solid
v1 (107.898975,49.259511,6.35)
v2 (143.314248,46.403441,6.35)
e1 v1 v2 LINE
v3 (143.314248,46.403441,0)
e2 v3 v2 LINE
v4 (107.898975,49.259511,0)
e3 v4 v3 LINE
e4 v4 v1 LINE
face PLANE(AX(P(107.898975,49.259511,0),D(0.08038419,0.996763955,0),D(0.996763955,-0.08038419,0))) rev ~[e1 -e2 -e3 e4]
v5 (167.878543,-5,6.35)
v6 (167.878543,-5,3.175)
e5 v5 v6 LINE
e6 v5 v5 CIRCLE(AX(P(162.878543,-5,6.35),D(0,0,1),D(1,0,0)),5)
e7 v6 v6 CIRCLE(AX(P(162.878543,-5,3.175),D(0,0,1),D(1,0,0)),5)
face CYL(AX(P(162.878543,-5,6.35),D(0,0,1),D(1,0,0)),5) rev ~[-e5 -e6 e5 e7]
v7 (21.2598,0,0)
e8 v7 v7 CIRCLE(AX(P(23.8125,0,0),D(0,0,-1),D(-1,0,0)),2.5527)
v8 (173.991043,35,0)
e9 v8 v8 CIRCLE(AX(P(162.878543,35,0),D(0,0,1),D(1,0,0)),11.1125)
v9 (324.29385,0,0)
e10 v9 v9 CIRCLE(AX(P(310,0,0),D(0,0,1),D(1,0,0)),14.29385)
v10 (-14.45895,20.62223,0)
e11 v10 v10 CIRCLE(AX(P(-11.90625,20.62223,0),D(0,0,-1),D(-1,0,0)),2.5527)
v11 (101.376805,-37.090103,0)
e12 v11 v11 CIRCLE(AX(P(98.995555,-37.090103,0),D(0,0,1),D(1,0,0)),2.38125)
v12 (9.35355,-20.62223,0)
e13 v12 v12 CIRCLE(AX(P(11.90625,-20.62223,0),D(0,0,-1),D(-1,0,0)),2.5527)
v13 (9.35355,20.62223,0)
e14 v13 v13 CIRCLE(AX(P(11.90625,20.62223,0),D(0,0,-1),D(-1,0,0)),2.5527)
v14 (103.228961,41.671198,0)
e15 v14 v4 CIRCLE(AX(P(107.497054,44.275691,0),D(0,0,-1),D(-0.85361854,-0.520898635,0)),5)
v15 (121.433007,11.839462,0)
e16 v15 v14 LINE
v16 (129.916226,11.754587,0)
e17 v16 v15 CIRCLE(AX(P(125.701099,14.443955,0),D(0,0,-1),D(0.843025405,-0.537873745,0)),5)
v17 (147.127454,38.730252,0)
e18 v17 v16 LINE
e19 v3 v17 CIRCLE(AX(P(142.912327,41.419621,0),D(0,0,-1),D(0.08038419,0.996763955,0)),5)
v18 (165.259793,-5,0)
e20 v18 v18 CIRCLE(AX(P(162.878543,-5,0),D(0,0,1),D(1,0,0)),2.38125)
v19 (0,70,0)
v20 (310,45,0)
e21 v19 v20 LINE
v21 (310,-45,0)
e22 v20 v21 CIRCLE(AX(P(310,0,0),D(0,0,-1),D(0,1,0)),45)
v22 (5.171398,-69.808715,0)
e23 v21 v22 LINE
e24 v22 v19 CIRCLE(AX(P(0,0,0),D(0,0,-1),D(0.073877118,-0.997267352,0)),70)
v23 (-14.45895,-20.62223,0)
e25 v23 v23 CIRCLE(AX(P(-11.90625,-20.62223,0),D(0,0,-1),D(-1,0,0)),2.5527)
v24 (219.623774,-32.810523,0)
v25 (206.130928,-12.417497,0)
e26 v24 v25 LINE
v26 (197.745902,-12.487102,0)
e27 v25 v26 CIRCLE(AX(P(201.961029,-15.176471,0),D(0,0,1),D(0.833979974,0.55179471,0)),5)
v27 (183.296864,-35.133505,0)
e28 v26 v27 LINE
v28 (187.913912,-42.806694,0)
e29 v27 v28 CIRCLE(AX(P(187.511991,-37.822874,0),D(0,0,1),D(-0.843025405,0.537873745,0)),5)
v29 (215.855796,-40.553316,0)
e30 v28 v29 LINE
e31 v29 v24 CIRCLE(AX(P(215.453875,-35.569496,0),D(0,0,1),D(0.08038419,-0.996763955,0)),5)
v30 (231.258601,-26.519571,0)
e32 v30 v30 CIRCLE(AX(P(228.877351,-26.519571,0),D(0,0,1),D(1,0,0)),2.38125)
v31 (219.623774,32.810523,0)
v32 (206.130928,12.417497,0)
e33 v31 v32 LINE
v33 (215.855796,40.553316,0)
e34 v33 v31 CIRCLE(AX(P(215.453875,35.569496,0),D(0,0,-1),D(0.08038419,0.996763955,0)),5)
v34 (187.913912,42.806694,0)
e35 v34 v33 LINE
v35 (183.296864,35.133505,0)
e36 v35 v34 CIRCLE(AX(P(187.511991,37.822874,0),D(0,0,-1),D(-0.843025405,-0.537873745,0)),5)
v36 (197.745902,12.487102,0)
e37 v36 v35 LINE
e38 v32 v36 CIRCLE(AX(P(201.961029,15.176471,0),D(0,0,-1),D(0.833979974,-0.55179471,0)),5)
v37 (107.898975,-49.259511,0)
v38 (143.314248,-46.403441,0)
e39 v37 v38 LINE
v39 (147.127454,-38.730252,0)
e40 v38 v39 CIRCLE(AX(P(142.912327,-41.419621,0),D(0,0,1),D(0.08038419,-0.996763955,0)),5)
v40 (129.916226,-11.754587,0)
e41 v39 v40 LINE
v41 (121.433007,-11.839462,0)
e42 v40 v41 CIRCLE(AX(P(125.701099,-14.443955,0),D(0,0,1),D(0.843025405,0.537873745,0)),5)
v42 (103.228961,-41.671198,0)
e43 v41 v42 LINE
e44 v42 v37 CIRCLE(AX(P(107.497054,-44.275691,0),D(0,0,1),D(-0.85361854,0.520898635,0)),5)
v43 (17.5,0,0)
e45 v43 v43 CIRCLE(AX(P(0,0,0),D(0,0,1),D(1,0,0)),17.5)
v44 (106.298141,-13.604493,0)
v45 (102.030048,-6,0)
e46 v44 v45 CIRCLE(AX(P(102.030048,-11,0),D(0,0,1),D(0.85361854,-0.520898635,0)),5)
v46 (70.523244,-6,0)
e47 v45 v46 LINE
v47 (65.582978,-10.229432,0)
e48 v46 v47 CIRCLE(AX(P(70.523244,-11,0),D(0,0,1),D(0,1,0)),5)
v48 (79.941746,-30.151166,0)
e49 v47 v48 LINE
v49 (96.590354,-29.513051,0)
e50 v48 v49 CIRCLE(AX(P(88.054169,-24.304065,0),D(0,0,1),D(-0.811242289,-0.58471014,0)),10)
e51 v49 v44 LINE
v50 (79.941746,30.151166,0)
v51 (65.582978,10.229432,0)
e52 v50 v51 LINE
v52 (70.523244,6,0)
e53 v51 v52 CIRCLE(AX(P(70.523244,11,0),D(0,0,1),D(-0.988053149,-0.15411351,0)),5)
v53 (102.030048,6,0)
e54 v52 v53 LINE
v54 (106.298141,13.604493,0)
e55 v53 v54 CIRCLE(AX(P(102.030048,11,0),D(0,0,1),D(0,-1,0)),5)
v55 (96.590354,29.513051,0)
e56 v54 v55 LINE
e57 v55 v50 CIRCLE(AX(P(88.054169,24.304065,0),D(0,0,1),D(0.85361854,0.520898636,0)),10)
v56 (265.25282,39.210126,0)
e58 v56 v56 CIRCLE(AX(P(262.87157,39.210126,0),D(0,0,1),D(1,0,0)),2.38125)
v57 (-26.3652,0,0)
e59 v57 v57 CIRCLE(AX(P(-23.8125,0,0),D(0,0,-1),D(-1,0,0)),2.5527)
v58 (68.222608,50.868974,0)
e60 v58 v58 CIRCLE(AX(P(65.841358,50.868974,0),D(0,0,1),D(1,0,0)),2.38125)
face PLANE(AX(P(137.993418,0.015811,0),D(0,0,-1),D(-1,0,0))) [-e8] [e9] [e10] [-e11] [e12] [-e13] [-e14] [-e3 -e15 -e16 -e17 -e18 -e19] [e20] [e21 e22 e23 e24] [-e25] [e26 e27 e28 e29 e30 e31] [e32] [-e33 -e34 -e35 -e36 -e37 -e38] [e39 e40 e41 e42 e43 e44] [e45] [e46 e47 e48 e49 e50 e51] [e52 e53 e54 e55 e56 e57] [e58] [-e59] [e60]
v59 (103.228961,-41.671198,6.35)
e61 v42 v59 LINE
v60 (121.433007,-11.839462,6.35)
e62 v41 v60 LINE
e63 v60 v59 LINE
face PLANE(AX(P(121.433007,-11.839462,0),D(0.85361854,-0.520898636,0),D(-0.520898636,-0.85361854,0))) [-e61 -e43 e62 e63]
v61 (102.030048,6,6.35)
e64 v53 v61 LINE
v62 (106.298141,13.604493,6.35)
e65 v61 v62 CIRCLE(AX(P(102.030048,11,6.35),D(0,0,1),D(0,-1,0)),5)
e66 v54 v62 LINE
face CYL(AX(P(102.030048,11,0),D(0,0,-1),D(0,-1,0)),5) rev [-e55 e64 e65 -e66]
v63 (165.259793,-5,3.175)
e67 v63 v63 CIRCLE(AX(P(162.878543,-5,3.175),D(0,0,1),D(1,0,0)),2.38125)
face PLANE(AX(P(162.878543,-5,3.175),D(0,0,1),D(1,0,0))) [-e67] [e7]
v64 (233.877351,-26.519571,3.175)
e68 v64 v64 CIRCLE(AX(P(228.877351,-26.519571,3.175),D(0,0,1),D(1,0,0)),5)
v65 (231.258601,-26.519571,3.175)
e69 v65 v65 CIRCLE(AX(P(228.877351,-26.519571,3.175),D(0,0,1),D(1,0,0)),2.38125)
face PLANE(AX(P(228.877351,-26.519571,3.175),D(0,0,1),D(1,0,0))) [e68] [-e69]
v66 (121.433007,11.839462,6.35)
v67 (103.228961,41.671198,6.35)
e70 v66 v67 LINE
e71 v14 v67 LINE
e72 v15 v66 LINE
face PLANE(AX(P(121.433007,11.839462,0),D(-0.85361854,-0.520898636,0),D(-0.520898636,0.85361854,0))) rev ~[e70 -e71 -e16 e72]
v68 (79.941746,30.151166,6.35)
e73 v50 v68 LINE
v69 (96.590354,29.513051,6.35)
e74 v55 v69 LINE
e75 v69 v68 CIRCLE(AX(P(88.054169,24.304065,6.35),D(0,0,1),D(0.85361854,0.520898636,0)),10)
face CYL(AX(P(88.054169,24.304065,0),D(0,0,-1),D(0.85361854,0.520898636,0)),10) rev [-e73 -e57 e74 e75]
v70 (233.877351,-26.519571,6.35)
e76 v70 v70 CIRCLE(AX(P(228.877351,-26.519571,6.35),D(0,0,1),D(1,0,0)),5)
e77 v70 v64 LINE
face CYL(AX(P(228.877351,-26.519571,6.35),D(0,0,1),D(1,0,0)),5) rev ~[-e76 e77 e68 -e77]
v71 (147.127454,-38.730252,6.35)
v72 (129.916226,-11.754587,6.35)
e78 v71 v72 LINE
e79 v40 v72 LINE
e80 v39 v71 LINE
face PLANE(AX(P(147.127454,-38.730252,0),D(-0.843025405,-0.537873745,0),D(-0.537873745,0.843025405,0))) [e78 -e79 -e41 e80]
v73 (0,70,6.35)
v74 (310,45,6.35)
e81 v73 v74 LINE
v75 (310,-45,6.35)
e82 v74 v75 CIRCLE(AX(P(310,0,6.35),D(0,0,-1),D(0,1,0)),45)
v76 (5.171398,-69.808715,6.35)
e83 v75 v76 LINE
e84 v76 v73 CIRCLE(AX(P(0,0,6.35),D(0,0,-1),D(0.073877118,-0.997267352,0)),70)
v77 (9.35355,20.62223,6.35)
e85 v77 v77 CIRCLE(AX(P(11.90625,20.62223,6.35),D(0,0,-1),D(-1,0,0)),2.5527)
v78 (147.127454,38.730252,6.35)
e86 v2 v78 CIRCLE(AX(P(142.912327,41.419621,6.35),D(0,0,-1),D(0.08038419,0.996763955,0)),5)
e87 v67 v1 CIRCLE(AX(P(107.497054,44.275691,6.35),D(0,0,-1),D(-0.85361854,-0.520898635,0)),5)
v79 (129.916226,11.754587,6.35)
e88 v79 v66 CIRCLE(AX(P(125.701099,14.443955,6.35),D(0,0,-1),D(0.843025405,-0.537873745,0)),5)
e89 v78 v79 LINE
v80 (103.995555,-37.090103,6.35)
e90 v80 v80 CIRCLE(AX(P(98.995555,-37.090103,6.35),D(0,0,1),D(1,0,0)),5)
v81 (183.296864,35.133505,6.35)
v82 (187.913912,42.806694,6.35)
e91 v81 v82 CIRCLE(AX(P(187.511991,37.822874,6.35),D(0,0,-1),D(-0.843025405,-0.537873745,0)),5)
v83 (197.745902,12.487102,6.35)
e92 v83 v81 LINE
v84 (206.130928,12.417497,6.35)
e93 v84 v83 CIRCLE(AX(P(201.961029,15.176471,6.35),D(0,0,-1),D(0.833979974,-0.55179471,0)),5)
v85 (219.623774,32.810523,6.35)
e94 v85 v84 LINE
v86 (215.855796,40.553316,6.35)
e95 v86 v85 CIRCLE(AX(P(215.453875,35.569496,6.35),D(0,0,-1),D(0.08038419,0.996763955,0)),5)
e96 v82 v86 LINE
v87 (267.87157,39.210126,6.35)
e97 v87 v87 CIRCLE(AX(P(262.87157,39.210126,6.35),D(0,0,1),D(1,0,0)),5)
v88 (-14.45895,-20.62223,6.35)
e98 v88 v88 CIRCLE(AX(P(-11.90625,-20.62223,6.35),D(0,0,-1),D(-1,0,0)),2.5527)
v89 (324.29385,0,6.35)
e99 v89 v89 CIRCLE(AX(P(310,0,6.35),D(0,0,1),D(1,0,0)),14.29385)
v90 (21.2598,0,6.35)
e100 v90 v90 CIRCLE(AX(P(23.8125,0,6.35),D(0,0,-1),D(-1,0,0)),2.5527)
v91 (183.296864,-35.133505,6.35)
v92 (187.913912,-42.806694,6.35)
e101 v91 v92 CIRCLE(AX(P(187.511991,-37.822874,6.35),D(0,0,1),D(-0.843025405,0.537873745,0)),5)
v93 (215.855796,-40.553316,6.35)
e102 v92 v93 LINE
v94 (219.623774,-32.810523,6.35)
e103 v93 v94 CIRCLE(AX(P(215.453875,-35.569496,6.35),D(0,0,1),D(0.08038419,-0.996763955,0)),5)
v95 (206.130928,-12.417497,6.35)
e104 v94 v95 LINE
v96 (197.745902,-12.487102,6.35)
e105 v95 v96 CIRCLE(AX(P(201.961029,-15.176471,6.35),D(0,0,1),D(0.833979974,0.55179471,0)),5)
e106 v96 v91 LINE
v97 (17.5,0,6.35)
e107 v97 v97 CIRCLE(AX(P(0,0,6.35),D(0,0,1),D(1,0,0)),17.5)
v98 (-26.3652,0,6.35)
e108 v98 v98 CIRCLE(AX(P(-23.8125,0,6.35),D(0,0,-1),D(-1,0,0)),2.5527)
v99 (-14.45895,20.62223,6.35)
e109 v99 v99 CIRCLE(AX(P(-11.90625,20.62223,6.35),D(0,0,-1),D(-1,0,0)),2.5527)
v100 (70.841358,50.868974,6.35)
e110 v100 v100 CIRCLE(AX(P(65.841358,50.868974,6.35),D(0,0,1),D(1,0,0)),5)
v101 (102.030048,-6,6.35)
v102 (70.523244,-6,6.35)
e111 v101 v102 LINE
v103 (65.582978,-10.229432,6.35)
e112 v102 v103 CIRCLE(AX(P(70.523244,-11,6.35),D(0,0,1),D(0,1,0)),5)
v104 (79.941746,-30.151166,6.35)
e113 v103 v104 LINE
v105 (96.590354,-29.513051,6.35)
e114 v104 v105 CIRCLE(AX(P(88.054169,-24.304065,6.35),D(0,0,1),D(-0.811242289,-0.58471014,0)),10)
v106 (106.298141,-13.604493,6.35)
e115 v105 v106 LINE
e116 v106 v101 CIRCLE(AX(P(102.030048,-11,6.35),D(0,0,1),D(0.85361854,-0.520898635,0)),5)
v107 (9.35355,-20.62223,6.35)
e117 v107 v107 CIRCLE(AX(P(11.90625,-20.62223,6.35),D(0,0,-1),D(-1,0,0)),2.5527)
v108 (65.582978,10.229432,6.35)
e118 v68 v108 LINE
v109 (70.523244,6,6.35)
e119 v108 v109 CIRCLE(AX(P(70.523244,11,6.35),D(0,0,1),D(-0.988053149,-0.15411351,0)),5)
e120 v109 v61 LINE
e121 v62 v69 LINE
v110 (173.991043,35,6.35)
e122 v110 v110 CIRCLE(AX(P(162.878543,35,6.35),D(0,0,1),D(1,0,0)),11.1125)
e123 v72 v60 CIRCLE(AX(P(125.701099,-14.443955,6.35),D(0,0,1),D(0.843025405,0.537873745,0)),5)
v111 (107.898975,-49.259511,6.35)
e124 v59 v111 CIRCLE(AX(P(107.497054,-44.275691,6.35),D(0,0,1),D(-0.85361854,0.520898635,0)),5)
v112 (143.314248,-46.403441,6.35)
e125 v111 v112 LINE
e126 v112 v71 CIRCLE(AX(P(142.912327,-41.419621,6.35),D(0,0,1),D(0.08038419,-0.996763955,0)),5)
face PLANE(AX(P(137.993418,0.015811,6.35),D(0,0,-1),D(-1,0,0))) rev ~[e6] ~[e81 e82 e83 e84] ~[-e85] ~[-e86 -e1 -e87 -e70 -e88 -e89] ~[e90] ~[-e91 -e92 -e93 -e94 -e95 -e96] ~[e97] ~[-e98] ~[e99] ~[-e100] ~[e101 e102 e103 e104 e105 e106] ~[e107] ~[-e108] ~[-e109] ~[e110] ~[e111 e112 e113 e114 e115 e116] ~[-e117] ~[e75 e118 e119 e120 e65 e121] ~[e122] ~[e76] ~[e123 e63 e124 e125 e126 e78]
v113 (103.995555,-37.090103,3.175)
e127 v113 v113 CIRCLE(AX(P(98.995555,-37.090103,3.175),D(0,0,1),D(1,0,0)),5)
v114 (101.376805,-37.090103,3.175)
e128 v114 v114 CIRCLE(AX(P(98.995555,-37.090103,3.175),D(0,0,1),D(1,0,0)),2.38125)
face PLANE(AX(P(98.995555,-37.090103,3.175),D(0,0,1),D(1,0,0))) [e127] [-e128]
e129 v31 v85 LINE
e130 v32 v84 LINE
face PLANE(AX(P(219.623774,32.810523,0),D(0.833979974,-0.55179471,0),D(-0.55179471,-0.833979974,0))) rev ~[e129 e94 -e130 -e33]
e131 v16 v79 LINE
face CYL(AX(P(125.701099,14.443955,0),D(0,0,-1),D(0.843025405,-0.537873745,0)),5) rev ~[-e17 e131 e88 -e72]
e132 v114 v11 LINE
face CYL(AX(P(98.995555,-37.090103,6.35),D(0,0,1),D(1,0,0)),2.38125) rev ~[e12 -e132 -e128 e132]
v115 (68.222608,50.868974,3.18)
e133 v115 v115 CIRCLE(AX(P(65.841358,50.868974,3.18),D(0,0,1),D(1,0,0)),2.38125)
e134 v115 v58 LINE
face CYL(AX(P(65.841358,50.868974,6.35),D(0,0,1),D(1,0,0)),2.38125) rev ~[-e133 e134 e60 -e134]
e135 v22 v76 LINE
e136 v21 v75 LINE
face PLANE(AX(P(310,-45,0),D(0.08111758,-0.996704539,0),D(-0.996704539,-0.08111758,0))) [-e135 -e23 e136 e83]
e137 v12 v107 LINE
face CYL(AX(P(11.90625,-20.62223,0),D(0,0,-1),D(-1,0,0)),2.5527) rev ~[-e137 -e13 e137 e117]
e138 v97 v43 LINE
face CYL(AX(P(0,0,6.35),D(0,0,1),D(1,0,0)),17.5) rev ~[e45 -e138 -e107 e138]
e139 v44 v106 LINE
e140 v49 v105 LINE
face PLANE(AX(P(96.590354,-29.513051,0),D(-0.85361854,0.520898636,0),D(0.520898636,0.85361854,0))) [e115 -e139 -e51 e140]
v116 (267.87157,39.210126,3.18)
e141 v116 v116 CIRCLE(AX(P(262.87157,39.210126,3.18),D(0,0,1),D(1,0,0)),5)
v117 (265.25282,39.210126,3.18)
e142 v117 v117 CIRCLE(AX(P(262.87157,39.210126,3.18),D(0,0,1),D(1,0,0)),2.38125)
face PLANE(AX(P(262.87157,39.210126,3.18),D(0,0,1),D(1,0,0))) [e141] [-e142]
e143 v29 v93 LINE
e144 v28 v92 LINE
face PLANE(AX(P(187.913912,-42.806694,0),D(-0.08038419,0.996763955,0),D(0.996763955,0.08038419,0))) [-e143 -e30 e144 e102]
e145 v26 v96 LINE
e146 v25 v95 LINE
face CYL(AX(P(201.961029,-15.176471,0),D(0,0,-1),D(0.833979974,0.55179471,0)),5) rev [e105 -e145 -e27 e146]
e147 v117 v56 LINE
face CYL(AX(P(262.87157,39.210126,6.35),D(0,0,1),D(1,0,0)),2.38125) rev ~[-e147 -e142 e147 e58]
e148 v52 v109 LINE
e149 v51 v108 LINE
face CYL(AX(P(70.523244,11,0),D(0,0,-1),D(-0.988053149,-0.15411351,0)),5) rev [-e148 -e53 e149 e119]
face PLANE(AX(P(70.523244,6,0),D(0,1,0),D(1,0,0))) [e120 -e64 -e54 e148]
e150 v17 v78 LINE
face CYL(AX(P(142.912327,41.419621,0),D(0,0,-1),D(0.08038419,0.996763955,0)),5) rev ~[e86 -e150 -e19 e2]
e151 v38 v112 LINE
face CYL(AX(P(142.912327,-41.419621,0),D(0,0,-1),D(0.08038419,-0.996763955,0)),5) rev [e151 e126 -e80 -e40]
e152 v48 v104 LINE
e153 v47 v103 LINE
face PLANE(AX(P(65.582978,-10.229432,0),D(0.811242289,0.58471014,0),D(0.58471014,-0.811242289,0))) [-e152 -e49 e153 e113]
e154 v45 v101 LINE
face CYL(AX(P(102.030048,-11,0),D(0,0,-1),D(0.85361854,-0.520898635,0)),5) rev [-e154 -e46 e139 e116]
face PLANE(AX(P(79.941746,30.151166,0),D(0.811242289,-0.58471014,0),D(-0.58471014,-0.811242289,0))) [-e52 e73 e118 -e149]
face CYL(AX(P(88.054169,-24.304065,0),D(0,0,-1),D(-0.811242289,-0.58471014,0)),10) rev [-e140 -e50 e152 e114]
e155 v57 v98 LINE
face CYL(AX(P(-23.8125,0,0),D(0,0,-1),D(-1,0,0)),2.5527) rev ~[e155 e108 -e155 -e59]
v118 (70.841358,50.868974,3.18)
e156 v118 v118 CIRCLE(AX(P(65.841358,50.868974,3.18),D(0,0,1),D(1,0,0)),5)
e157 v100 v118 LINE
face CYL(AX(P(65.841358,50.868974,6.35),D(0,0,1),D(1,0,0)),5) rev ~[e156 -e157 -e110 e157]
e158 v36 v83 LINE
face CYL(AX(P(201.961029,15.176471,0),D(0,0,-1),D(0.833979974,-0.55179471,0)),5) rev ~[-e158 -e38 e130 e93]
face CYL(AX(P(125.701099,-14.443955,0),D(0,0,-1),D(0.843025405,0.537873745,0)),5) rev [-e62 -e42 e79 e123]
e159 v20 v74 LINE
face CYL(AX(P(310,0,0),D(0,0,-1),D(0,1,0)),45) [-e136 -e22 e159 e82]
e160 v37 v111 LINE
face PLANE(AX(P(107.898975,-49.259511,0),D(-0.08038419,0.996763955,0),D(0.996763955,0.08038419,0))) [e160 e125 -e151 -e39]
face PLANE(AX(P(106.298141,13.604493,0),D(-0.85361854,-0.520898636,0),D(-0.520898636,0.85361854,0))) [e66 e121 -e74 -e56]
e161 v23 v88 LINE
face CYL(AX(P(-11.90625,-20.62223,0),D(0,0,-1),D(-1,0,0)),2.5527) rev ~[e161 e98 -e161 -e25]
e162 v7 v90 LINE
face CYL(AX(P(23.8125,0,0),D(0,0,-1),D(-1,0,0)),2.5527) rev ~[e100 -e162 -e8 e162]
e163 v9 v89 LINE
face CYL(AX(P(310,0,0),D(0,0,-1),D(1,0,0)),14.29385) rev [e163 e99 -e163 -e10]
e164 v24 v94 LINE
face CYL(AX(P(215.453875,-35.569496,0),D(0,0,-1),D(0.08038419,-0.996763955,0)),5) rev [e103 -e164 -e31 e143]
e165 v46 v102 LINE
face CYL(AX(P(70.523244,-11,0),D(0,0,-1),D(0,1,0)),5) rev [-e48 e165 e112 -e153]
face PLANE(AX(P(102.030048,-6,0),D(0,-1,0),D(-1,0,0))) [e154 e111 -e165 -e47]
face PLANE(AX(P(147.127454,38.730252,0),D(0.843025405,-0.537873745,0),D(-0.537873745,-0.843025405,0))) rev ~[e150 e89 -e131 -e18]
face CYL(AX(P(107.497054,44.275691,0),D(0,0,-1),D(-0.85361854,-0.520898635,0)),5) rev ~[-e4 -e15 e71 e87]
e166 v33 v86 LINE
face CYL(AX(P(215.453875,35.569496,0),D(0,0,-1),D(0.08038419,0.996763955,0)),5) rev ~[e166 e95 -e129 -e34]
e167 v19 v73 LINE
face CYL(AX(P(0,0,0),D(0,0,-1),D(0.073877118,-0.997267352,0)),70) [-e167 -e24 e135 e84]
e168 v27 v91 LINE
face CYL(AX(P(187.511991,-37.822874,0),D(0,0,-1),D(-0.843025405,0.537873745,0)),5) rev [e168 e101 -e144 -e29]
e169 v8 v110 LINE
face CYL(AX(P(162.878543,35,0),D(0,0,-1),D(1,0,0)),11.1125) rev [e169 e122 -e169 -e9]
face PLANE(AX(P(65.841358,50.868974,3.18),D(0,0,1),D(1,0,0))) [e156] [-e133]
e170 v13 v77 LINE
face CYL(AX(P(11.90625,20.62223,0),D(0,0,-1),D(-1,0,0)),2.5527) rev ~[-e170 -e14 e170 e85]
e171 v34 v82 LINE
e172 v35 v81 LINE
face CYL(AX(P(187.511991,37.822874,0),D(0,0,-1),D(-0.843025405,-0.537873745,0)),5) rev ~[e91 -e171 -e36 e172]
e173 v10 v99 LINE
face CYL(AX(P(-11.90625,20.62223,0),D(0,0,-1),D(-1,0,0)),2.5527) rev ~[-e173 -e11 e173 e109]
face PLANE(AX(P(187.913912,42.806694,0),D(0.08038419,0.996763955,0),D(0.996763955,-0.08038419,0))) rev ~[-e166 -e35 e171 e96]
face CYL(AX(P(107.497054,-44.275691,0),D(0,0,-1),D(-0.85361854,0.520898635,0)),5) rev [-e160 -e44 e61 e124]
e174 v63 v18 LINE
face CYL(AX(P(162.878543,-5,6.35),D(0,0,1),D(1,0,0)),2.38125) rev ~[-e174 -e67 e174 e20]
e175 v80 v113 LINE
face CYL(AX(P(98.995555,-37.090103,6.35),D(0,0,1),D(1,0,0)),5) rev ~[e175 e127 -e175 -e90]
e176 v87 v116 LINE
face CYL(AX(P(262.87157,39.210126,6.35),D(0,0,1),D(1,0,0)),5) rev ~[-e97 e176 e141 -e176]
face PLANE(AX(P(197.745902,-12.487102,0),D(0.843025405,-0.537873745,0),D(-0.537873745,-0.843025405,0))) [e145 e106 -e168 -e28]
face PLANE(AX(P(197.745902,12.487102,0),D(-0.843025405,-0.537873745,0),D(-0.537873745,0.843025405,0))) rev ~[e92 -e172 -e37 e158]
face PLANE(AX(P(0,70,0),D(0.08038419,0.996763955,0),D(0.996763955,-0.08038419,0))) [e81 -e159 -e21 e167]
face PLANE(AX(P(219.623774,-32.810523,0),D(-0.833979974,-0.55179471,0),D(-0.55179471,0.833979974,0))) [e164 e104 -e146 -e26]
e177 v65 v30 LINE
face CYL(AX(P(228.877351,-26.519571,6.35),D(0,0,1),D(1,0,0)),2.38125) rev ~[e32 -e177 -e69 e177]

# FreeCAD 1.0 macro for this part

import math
import FreeCAD as App
import Part
import Sketcher
from FreeCAD import Vector
Q = App.Units.Quantity

doc = App.newDocument("Part")
body = doc.addObject("PartDesign::Body", "Body")

# Sketch on XY plane
sketch1 = body.newObject("Sketcher::SketchObject", "Sketch")
sketch1.AttachmentSupport = (doc.getObject("XY_Plane"), [""])
sketch1.MapMode = "FlatFace"
sketch1.addGeometry(Part.LineSegment(Vector(310, 45, 0), Vector(0, 70, 0)), False)
sketch1.addGeometry(Part.ArcOfCircle(Part.Circle(Vector(0, 0, 0), Vector(0, 0, 1), 70), math.radians(90), math.radians(274.236707)), False)
sketch1.addGeometry(Part.LineSegment(Vector(5.171398, -69.808715, 0), Vector(310, -45, 0)), False)
sketch1.addGeometry(Part.ArcOfCircle(Part.Circle(Vector(310, 0, 0), Vector(0, 0, 1), 45), math.radians(-90), math.radians(90)), False)
sketch1.addGeometry(Part.ArcOfCircle(Part.Circle(Vector(187.511991, -37.822874, 0), Vector(0, 0, 1), 5), math.radians(147.460988), math.radians(274.610649)), False)
sketch1.addGeometry(Part.LineSegment(Vector(183.296864, -35.133505, 0), Vector(197.745902, -12.487102, 0)), False)
sketch1.addGeometry(Part.ArcOfCircle(Part.Circle(Vector(201.961029, -15.176471, 0), Vector(0, 0, 1), 5), math.radians(33.490225), math.radians(147.460988)), False)
sketch1.addGeometry(Part.LineSegment(Vector(206.130928, -12.417497, 0), Vector(219.623774, -32.810523, 0)), False)
sketch1.addGeometry(Part.ArcOfCircle(Part.Circle(Vector(215.453875, -35.569496, 0), Vector(0, 0, 1), 5), math.radians(-85.389351), math.radians(33.490225)), False)
sketch1.addGeometry(Part.LineSegment(Vector(215.855796, -40.553316, 0), Vector(187.913912, -42.806694, 0)), False)
sketch1.addGeometry(Part.Circle(Vector(310, 0, 0), Vector(0, 0, 1), 14.29385), False)
sketch1.addGeometry(Part.ArcOfCircle(Part.Circle(Vector(125.701099, -14.443955, 0), Vector(0, 0, 1), 5), math.radians(32.539012), math.radians(148.60745)), False)
sketch1.addGeometry(Part.LineSegment(Vector(129.916226, -11.754587, 0), Vector(147.127454, -38.730252, 0)), False)
sketch1.addGeometry(Part.ArcOfCircle(Part.Circle(Vector(142.912327, -41.419621, 0), Vector(0, 0, 1), 5), math.radians(-85.389351), math.radians(32.539012)), False)
sketch1.addGeometry(Part.LineSegment(Vector(143.314248, -46.403441, 0), Vector(107.898975, -49.259511, 0)), False)
sketch1.addGeometry(Part.ArcOfCircle(Part.Circle(Vector(107.497054, -44.275691, 0), Vector(0, 0, 1), 5), math.radians(148.60745), math.radians(274.610649)), False)
sketch1.addGeometry(Part.LineSegment(Vector(103.228961, -41.671198, 0), Vector(121.433007, -11.839462, 0)), False)
sketch1.addGeometry(Part.ArcOfCircle(Part.Circle(Vector(88.054169, -24.304065, 0), Vector(0, 0, 1), 10), math.radians(-144.217485), math.radians(-31.39255)), False)
sketch1.addGeometry(Part.LineSegment(Vector(79.941746, -30.151166, 0), Vector(65.582978, -10.229432, 0)), False)
sketch1.addGeometry(Part.ArcOfCircle(Part.Circle(Vector(70.523244, -11, 0), Vector(0, 0, 1), 5), math.radians(90), math.radians(171.134614)), False)
sketch1.addGeometry(Part.LineSegment(Vector(70.523244, -6, 0), Vector(102.030048, -6, 0)), False)
sketch1.addGeometry(Part.ArcOfCircle(Part.Circle(Vector(102.030048, -11, 0), Vector(0, 0, 1), 5), math.radians(-31.39255), math.radians(90)), False)
sketch1.addGeometry(Part.LineSegment(Vector(106.298141, -13.604493, 0), Vector(96.590354, -29.513051, 0)), False)
sketch1.addGeometry(Part.Circle(Vector(0, 0, 0), Vector(0, 0, 1), 14.29385), False)
sketch1.addGeometry(Part.LineSegment(Vector(219.623774, 32.810523, 0), Vector(206.130928, 12.417497, 0)), False)
sketch1.addGeometry(Part.ArcOfCircle(Part.Circle(Vector(201.961029, 15.176471, 0), Vector(0, 0, 1), 5), math.radians(-147.460988), math.radians(-33.490225)), False)
sketch1.addGeometry(Part.LineSegment(Vector(197.745902, 12.487102, 0), Vector(183.296864, 35.133505, 0)), False)
sketch1.addGeometry(Part.ArcOfCircle(Part.Circle(Vector(187.511991, 37.822874, 0), Vector(0, 0, 1), 5), math.radians(85.389351), math.radians(212.539012)), False)
sketch1.addGeometry(Part.LineSegment(Vector(187.913912, 42.806694, 0), Vector(215.855796, 40.553316, 0)), False)
sketch1.addGeometry(Part.ArcOfCircle(Part.Circle(Vector(215.453875, 35.569496, 0), Vector(0, 0, 1), 5), math.radians(-33.490225), math.radians(85.389351)), False)
sketch1.addGeometry(Part.Circle(Vector(162.878543, 35, 0), Vector(0, 0, 1), 11.1125), False)
sketch1.addGeometry(Part.ArcOfCircle(Part.Circle(Vector(70.523244, 11, 0), Vector(0, 0, 1), 5), math.radians(-171.134614), math.radians(-90)), False)
sketch1.addGeometry(Part.LineSegment(Vector(65.582978, 10.229432, 0), Vector(79.941746, 30.151166, 0)), False)
sketch1.addGeometry(Part.ArcOfCircle(Part.Circle(Vector(88.054169, 24.304065, 0), Vector(0, 0, 1), 10), math.radians(31.39255), math.radians(144.217485)), False)
sketch1.addGeometry(Part.LineSegment(Vector(96.590354, 29.513051, 0), Vector(106.298141, 13.604493, 0)), False)
sketch1.addGeometry(Part.ArcOfCircle(Part.Circle(Vector(102.030048, 11, 0), Vector(0, 0, 1), 5), math.radians(-90), math.radians(31.39255)), False)
sketch1.addGeometry(Part.LineSegment(Vector(102.030048, 6, 0), Vector(70.523244, 6, 0)), False)
sketch1.addGeometry(Part.LineSegment(Vector(107.898975, 49.259511, 0), Vector(143.314248, 46.403441, 0)), False)
sketch1.addGeometry(Part.ArcOfCircle(Part.Circle(Vector(142.912327, 41.419621, 0), Vector(0, 0, 1), 5), math.radians(-32.539012), math.radians(85.389351)), False)
sketch1.addGeometry(Part.LineSegment(Vector(147.127454, 38.730252, 0), Vector(129.916226, 11.754587, 0)), False)
sketch1.addGeometry(Part.ArcOfCircle(Part.Circle(Vector(125.701099, 14.443955, 0), Vector(0, 0, 1), 5), math.radians(-148.60745), math.radians(-32.539012)), False)
sketch1.addGeometry(Part.LineSegment(Vector(121.433007, 11.839462, 0), Vector(103.228961, 41.671198, 0)), False)
sketch1.addGeometry(Part.ArcOfCircle(Part.Circle(Vector(107.497054, 44.275691, 0), Vector(0, 0, 1), 5), math.radians(85.389351), math.radians(211.39255)), False)
sketch1.addConstraint(Sketcher.Constraint("Coincident", 0, 2, 1, 1))
sketch1.addConstraint(Sketcher.Constraint("Coincident", 1, 2, 2, 1))
sketch1.addConstraint(Sketcher.Constraint("Coincident", 2, 2, 3, 1))
sketch1.addConstraint(Sketcher.Constraint("Coincident", 3, 2, 0, 1))
sketch1.addConstraint(Sketcher.Constraint("Tangent", 4, 1, 5, 1))
sketch1.addConstraint(Sketcher.Constraint("Tangent", 5, 2, 6, 2))
sketch1.addConstraint(Sketcher.Constraint("Tangent", 6, 1, 7, 1))
sketch1.addConstraint(Sketcher.Constraint("Tangent", 7, 2, 8, 2))
sketch1.addConstraint(Sketcher.Constraint("Tangent", 8, 1, 9, 1))
sketch1.addConstraint(Sketcher.Constraint("Tangent", 9, 2, 4, 2))
sketch1.addConstraint(Sketcher.Constraint("Tangent", 11, 1, 12, 1))
sketch1.addConstraint(Sketcher.Constraint("Tangent", 12, 2, 13, 2))
sketch1.addConstraint(Sketcher.Constraint("Tangent", 13, 1, 14, 1))
sketch1.addConstraint(Sketcher.Constraint("Tangent", 14, 2, 15, 2))
sketch1.addConstraint(Sketcher.Constraint("Tangent", 15, 1, 16, 1))
sketch1.addConstraint(Sketcher.Constraint("Tangent", 16, 2, 11, 2))
sketch1.addConstraint(Sketcher.Constraint("Tangent", 17, 1, 18, 1))
sketch1.addConstraint(Sketcher.Constraint("Coincident", 18, 2, 19, 2))
sketch1.addConstraint(Sketcher.Constraint("Tangent", 19, 1, 20, 1))
sketch1.addConstraint(Sketcher.Constraint("Tangent", 20, 2, 21, 2))
sketch1.addConstraint(Sketcher.Constraint("Tangent", 21, 1, 22, 1))
sketch1.addConstraint(Sketcher.Constraint("Tangent", 22, 2, 17, 2))
sketch1.addConstraint(Sketcher.Constraint("Tangent", 24, 2, 25, 2))
sketch1.addConstraint(Sketcher.Constraint("Tangent", 25, 1, 26, 1))
sketch1.addConstraint(Sketcher.Constraint("Tangent", 26, 2, 27, 2))
sketch1.addConstraint(Sketcher.Constraint("Tangent", 27, 1, 28, 1))
sketch1.addConstraint(Sketcher.Constraint("Tangent", 28, 2, 29, 2))
sketch1.addConstraint(Sketcher.Constraint("Tangent", 29, 1, 24, 1))
sketch1.addConstraint(Sketcher.Constraint("Coincident", 31, 1, 32, 1))
sketch1.addConstraint(Sketcher.Constraint("Tangent", 32, 2, 33, 2))
sketch1.addConstraint(Sketcher.Constraint("Tangent", 33, 1, 34, 1))
sketch1.addConstraint(Sketcher.Constraint("Tangent", 34, 2, 35, 2))
sketch1.addConstraint(Sketcher.Constraint("Tangent", 35, 1, 36, 1))
sketch1.addConstraint(Sketcher.Constraint("Tangent", 36, 2, 31, 2))
sketch1.addConstraint(Sketcher.Constraint("Tangent", 37, 2, 38, 2))
sketch1.addConstraint(Sketcher.Constraint("Tangent", 38, 1, 39, 1))
sketch1.addConstraint(Sketcher.Constraint("Tangent", 39, 2, 40, 2))
sketch1.addConstraint(Sketcher.Constraint("Tangent", 40, 1, 41, 1))
sketch1.addConstraint(Sketcher.Constraint("Tangent", 41, 2, 42, 2))
sketch1.addConstraint(Sketcher.Constraint("Tangent", 42, 1, 37, 1))
sketch1.addConstraint(Sketcher.Constraint("Horizontal", 20))
sketch1.addConstraint(Sketcher.Constraint("Horizontal", 36))
sketch1.addConstraint(Sketcher.Constraint("Coincident", 1, 3, -1, 1))
sketch1.addConstraint(Sketcher.Constraint("Coincident", 23, 3, -1, 1))
sketch1.addConstraint(Sketcher.Constraint("Coincident", 10, 3, 3, 3))
sketch1.addConstraint(Sketcher.Constraint("Equal", 4, 6))
sketch1.addConstraint(Sketcher.Constraint("Equal", 6, 8))
sketch1.addConstraint(Sketcher.Constraint("Equal", 8, 11))
sketch1.addConstraint(Sketcher.Constraint("Equal", 11, 13))
sketch1.addConstraint(Sketcher.Constraint("Equal", 13, 15))
sketch1.addConstraint(Sketcher.Constraint("Equal", 15, 19))
sketch1.addConstraint(Sketcher.Constraint("Equal", 19, 21))
sketch1.addConstraint(Sketcher.Constraint("Equal", 10, 23))
sketch1.addConstraint(Sketcher.Constraint("Equal", 21, 25))
sketch1.addConstraint(Sketcher.Constraint("Equal", 25, 27))
sketch1.addConstraint(Sketcher.Constraint("Equal", 27, 29))
sketch1.addConstraint(Sketcher.Constraint("Equal", 29, 31))
sketch1.addConstraint(Sketcher.Constraint("Equal", 17, 33))
sketch1.addConstraint(Sketcher.Constraint("Equal", 31, 35))
sketch1.addConstraint(Sketcher.Constraint("Equal", 35, 38))
sketch1.addConstraint(Sketcher.Constraint("Equal", 38, 40))
sketch1.addConstraint(Sketcher.Constraint("Equal", 40, 42))
sketch1.addConstraint(Sketcher.Constraint("Symmetric", 6, 3, 25, 3, -1))
sketch1.addConstraint(Sketcher.Constraint("Symmetric", 4, 3, 27, 3, -1))
sketch1.addConstraint(Sketcher.Constraint("Symmetric", 8, 3, 29, 3, -1))
sketch1.addConstraint(Sketcher.Constraint("Symmetric", 19, 3, 31, 3, -1))
sketch1.addConstraint(Sketcher.Constraint("Symmetric", 17, 3, 33, 3, -1))
sketch1.addConstraint(Sketcher.Constraint("Symmetric", 13, 3, 38, 3, -1))
sketch1.addConstraint(Sketcher.Constraint("Symmetric", 11, 3, 40, 3, -1))
sketch1.addConstraint(Sketcher.Constraint("Symmetric", 15, 3, 42, 3, -1))
sketch1.addConstraint(Sketcher.Constraint("Symmetric", 2, 2, 3, 2, -1))
sketch1.addConstraint(Sketcher.Constraint("PointOnObject", 0, 2, -2))
sketch1.addConstraint(Sketcher.Constraint("Parallel", 9, 14))
sketch1.addConstraint(Sketcher.Constraint("Parallel", 16, 22))
sketch1.addConstraint(Sketcher.Constraint("Parallel", 12, 26))
sketch1.addConstraint(Sketcher.Constraint("Parallel", 0, 28))
sketch1.addConstraint(Sketcher.Constraint("Parallel", 34, 41))
sketch1.addConstraint(Sketcher.Constraint("Vertical", 10, 3, 2, 2))
sketch1.addConstraint(Sketcher.Constraint("Vertical", 18, 2, 31, 1))
sketch1.addConstraint(Sketcher.Constraint("Radius", 1, Q("70 mm")))
sketch1.addConstraint(Sketcher.Constraint("Radius", 3, Q("45 mm")))
sketch1.addConstraint(Sketcher.Constraint("Radius", 4, Q("5 mm")))
sketch1.addConstraint(Sketcher.Constraint("Radius", 17, Q("10 mm")))
sketch1.addConstraint(Sketcher.Constraint("Diameter", 30, Q("22.225 mm")))
sketch1.addConstraint(Sketcher.Constraint("DistanceX", -1, 1, 3, 3, Q("310 mm")))
sketch1.addConstraint(Sketcher.Constraint("DistanceY", 19, 3, -1, 1, Q("11 mm")))
sketch1.addConstraint(Sketcher.Constraint("DistanceY", -1, 1, 30, 3, Q("35 mm")))
sketch1.addConstraint(Sketcher.Constraint("Diameter", 10, Q("28.5877 mm")))
sketch1.addConstraint(Sketcher.Constraint("Distance", 9, Q("28.032598 mm")))
sketch1.addConstraint(Sketcher.Constraint("DistanceX", -1, 1, 11, 3, Q("125.701099 mm")))
sketch1.addConstraint(Sketcher.Constraint("DistanceX", -1, 1, 1, 2, Q("5.171398 mm")))
sketch1.addConstraint(Sketcher.Constraint("DistanceX", -1, 1, 5, 2, Q("197.745902 mm")))
sketch1.addConstraint(Sketcher.Constraint("DistanceY", 15, 1, -1, 1, Q("41.671198 mm")))
sketch1.addConstraint(Sketcher.Constraint("Distance", 5, Q("26.863251 mm")))
sketch1.addConstraint(Sketcher.Constraint("Distance", 12, Q("31.998639 mm")))
sketch1.addConstraint(Sketcher.Constraint("Distance", 14, Q("35.530251 mm")))
sketch1.addConstraint(Sketcher.Constraint("Distance", 18, Q("24.55707 mm")))
sketch1.addConstraint(Sketcher.Constraint("DistanceX", 20, 1, 20, 2, Q("31.506804 mm")))
sketch1.addConstraint(Sketcher.Constraint("DistanceX", -1, 1, 4, 3, Q("187.511991 mm")))
sketch1.addConstraint(Sketcher.Constraint("DistanceY", 6, 3, -1, 1, Q("15.176471 mm")))
sketch1.addConstraint(Sketcher.Constraint("DistanceX", -1, 1, 17, 3, Q("88.054169 mm")))
sketch1.addConstraint(Sketcher.Constraint("DistanceX", -1, 1, 18, 2, Q("65.582978 mm")))
sketch1.addConstraint(Sketcher.Constraint("DistanceX", -1, 1, 30, 3, Q("162.878543 mm")))
pad1 = body.newObject("PartDesign::Pad", "Pad")
pad1.Profile = sketch1
pad1.Length = 6.35

# Sketch on XY plane
sketch2 = body.newObject("Sketcher::SketchObject", "Sketch001")
sketch2.AttachmentSupport = (doc.getObject("XY_Plane"), [""])
sketch2.MapMode = "FlatFace"
sketch2.AttachmentOffset = App.Placement(Vector(0, 0, 6.35), App.Rotation())
sketch2.addGeometry(Part.Circle(Vector(98.995555, -37.090103, 0), Vector(0, 0, 1), 2.38125), False)
sketch2.addGeometry(Part.Circle(Vector(228.877351, -26.519571, 0), Vector(0, 0, 1), 2.38125), False)
sketch2.addConstraint(Sketcher.Constraint("Equal", 0, 1))
sketch2.addConstraint(Sketcher.Constraint("Diameter", 0, Q("4.7625 mm")))
sketch2.addConstraint(Sketcher.Constraint("DistanceX", -1, 1, 1, 3, Q("228.877351 mm")))
sketch2.addConstraint(Sketcher.Constraint("DistanceY", 1, 3, -1, 1, Q("26.519571 mm")))
sketch2.addConstraint(Sketcher.Constraint("DistanceY", 0, 3, 1, 3, Q("10.570532 mm")))
sketch2.addConstraint(Sketcher.Constraint("DistanceX", -1, 1, 0, 3, Q("98.995555 mm")))
pocket1 = body.newObject("PartDesign::Pocket", "Pocket")
pocket1.Profile = sketch2
pocket1.Length = 50

# Sketch on XY plane
sketch3 = body.newObject("Sketcher::SketchObject", "Sketch002")
sketch3.AttachmentSupport = (doc.getObject("XY_Plane"), [""])
sketch3.MapMode = "FlatFace"
sketch3.AttachmentOffset = App.Placement(Vector(0, 0, 6.35), App.Rotation())
sketch3.addGeometry(Part.Circle(Vector(98.995555, -37.090103, 0), Vector(0, 0, 1), 5), False)
sketch3.addGeometry(Part.Circle(Vector(228.877351, -26.519571, 0), Vector(0, 0, 1), 5), False)
sketch3.addConstraint(Sketcher.Constraint("Equal", 0, 1))
sketch3.addConstraint(Sketcher.Constraint("Diameter", 0, Q("10 mm")))
sketch3.addConstraint(Sketcher.Constraint("DistanceX", -1, 1, 1, 3, Q("228.877351 mm")))
sketch3.addConstraint(Sketcher.Constraint("DistanceY", 1, 3, -1, 1, Q("26.519571 mm")))
sketch3.addConstraint(Sketcher.Constraint("DistanceY", 0, 3, 1, 3, Q("10.570532 mm")))
sketch3.addConstraint(Sketcher.Constraint("DistanceX", -1, 1, 0, 3, Q("98.995555 mm")))
pocket2 = body.newObject("PartDesign::Pocket", "Pocket001")
pocket2.Profile = sketch3
pocket2.Length = 3.175

# Sketch on XY plane
sketch4 = body.newObject("Sketcher::SketchObject", "Sketch003")
sketch4.AttachmentSupport = (doc.getObject("XY_Plane"), [""])
sketch4.MapMode = "FlatFace"
sketch4.AttachmentOffset = App.Placement(Vector(0, 0, 6.35), App.Rotation())
sketch4.addGeometry(Part.Circle(Vector(162.878543, -5, 0), Vector(0, 0, 1), 5), False)
sketch4.addConstraint(Sketcher.Constraint("Diameter", 0, Q("10 mm")))
sketch4.addConstraint(Sketcher.Constraint("DistanceY", 0, 3, -1, 1, Q("5 mm")))
sketch4.addConstraint(Sketcher.Constraint("DistanceX", -1, 1, 0, 3, Q("162.878543 mm")))
pocket3 = body.newObject("PartDesign::Pocket", "Pocket002")
pocket3.Profile = sketch4
pocket3.Length = 3.175

# Sketch on XY plane
sketch5 = body.newObject("Sketcher::SketchObject", "Sketch004")
sketch5.AttachmentSupport = (doc.getObject("XY_Plane"), [""])
sketch5.MapMode = "FlatFace"
sketch5.AttachmentOffset = App.Placement(Vector(0, 0, 6.35), App.Rotation())
sketch5.addGeometry(Part.Circle(Vector(162.878543, -5, 0), Vector(0, 0, 1), 2.38125), False)
sketch5.addConstraint(Sketcher.Constraint("DistanceY", 0, 3, -1, 1, Q("5 mm")))
sketch5.addConstraint(Sketcher.Constraint("Diameter", 0, Q("4.7625 mm")))
sketch5.addConstraint(Sketcher.Constraint("DistanceX", -1, 1, 0, 3, Q("162.878543 mm")))
pocket4 = body.newObject("PartDesign::Pocket", "Pocket003")
pocket4.Profile = sketch5
pocket4.Length = 10

# Sketch on XY plane
sketch6 = body.newObject("Sketcher::SketchObject", "Sketch005")
sketch6.AttachmentSupport = (doc.getObject("XY_Plane"), [""])
sketch6.MapMode = "FlatFace"
sketch6.AttachmentOffset = App.Placement(Vector(0, 0, 6.35), App.Rotation())
sketch6.addGeometry(Part.Circle(Vector(65.841358, 50.868974, 0), Vector(0, 0, 1), 2.38125), False)
sketch6.addGeometry(Part.Circle(Vector(262.87157, 39.210126, 0), Vector(0, 0, 1), 2.38125), False)
sketch6.addConstraint(Sketcher.Constraint("Equal", 0, 1))
sketch6.addConstraint(Sketcher.Constraint("Diameter", 0, Q("4.7625 mm")))
sketch6.addConstraint(Sketcher.Constraint("DistanceX", -1, 1, 1, 3, Q("262.87157 mm")))
sketch6.addConstraint(Sketcher.Constraint("DistanceX", 0, 3, 1, 3, Q("197.030212 mm")))
sketch6.addConstraint(Sketcher.Constraint("DistanceY", -1, 1, 0, 3, Q("50.868974 mm")))
sketch6.addConstraint(Sketcher.Constraint("DistanceY", -1, 1, 1, 3, Q("39.210126 mm")))
pocket5 = body.newObject("PartDesign::Pocket", "Pocket004")
pocket5.Profile = sketch6
pocket5.Length = 10

# Sketch on XY plane
sketch7 = body.newObject("Sketcher::SketchObject", "Sketch006")
sketch7.AttachmentSupport = (doc.getObject("XY_Plane"), [""])
sketch7.MapMode = "FlatFace"
sketch7.AttachmentOffset = App.Placement(Vector(0, 0, 6.35), App.Rotation())
sketch7.addGeometry(Part.Circle(Vector(65.841358, 50.868974, 0), Vector(0, 0, 1), 5), False)
sketch7.addGeometry(Part.Circle(Vector(262.87157, 39.210126, 0), Vector(0, 0, 1), 5), False)
sketch7.addConstraint(Sketcher.Constraint("Equal", 0, 1))
sketch7.addConstraint(Sketcher.Constraint("Diameter", 0, Q("10 mm")))
sketch7.addConstraint(Sketcher.Constraint("DistanceX", -1, 1, 1, 3, Q("262.87157 mm")))
sketch7.addConstraint(Sketcher.Constraint("DistanceX", 0, 3, 1, 3, Q("197.030212 mm")))
sketch7.addConstraint(Sketcher.Constraint("DistanceY", -1, 1, 0, 3, Q("50.868974 mm")))
sketch7.addConstraint(Sketcher.Constraint("DistanceY", -1, 1, 1, 3, Q("39.210126 mm")))
pocket6 = body.newObject("PartDesign::Pocket", "Pocket005")
pocket6.Profile = sketch7
pocket6.Length = 3.17

# Sketch on XY plane
sketch8 = body.newObject("Sketcher::SketchObject", "Sketch007")
sketch8.AttachmentSupport = (doc.getObject("XY_Plane"), [""])
sketch8.MapMode = "FlatFace"
sketch8.AttachmentOffset = App.Placement(Vector(0, 0, 6.35), App.Rotation())
sketch8.addGeometry(Part.Circle(Vector(0, 0, 0), Vector(0, 0, 1), 17.5), False)
sketch8.addConstraint(Sketcher.Constraint("Coincident", 0, 3, -1, 1))
sketch8.addConstraint(Sketcher.Constraint("Diameter", 0, Q("35 mm")))
pocket7 = body.newObject("PartDesign::Pocket", "Pocket006")
pocket7.Profile = sketch8
pocket7.Length = 10

# Sketch on XY plane
sketch9 = body.newObject("Sketcher::SketchObject", "Sketch008")
sketch9.AttachmentSupport = (doc.getObject("XY_Plane"), [""])
sketch9.MapMode = "FlatFace"
sketch9.addGeometry(Part.Circle(Vector(-23.8125, 0, 0), Vector(0, 0, 1), 2.5527), False)
sketch9.addGeometry(Part.Circle(Vector(-11.90625, -20.62223, 0), Vector(0, 0, 1), 2.5527), False)
sketch9.addGeometry(Part.Circle(Vector(11.90625, -20.62223, 0), Vector(0, 0, 1), 2.5527), False)
sketch9.addGeometry(Part.Circle(Vector(23.8125, 0, 0), Vector(0, 0, 1), 2.5527), False)
sketch9.addGeometry(Part.Circle(Vector(11.90625, 20.62223, 0), Vector(0, 0, 1), 2.5527), False)
sketch9.addGeometry(Part.Circle(Vector(-11.90625, 20.62223, 0), Vector(0, 0, 1), 2.5527), False)
sketch9.addConstraint(Sketcher.Constraint("Equal", 0, 1))
sketch9.addConstraint(Sketcher.Constraint("Equal", 1, 2))
sketch9.addConstraint(Sketcher.Constraint("Equal", 2, 3))
sketch9.addConstraint(Sketcher.Constraint("Equal", 3, 4))
sketch9.addConstraint(Sketcher.Constraint("Equal", 4, 5))
sketch9.addConstraint(Sketcher.Constraint("Symmetric", 0, 3, 3, 3, -1, 1))
sketch9.addConstraint(Sketcher.Constraint("Symmetric", 1, 3, 4, 3, -1, 1))
sketch9.addConstraint(Sketcher.Constraint("Symmetric", 2, 3, 5, 3, -1, 1))
sketch9.addConstraint(Sketcher.Constraint("Symmetric", 1, 3, 2, 3, -2))
sketch9.addConstraint(Sketcher.Constraint("PointOnObject", 0, 3, -1))
sketch9.addConstraint(Sketcher.Constraint("Diameter", 0, Q("5.1054 mm")))
sketch9.addConstraint(Sketcher.Constraint("DistanceX", 0, 3, 3, 3, Q("47.625 mm")))
sketch9.addConstraint(Sketcher.Constraint("DistanceX", 1, 3, 2, 3, Q("23.8125 mm")))
sketch9.addConstraint(Sketcher.Constraint("DistanceY", 1, 3, -1, 1, Q("20.62223 mm")))
pocket8 = body.newObject("PartDesign::Pocket", "Pocket007")
pocket8.Profile = sketch9
pocket8.Length = 10
pocket8.Reversed = True

doc.recompute()
